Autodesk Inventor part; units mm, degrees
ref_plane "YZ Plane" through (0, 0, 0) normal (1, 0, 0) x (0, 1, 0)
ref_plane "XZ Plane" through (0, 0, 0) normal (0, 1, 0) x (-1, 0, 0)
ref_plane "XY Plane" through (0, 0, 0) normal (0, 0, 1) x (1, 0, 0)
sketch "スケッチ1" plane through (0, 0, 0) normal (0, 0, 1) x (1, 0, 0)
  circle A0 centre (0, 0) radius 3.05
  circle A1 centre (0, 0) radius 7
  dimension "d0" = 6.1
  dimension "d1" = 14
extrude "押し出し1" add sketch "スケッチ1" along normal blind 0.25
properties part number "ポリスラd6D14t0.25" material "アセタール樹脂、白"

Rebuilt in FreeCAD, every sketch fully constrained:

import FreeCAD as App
import Part
import Sketcher
from FreeCAD import Vector

doc = App.newDocument("Part")
params = doc.addObject("Spreadsheet::Sheet", "Params")
for row, (alias, value) in enumerate([
    ("sketch1_diameter", "14 mm"),
    ("sketch1_diameter2", "6.1 mm"),
    ("pad1_length", "0.25 mm"),
], start=1):
    params.set(f"A{row}", alias)
    params.set(f"B{row}", "=" + value)
    params.setAlias(f"B{row}", alias)

body = doc.addObject("PartDesign::Body", "Body")

# Sketch on XY plane
sketch1 = body.newObject("Sketcher::SketchObject", "Sketch")
sketch1.AttachmentSupport = (doc.getObject("XY_Plane"), [""])
sketch1.MapMode = "FlatFace"
sketch1.addGeometry([
    Part.Circle(Vector(0, 0, 0), Vector(0, 0, 1), 7),
    Part.Circle(Vector(0, 0, 0), Vector(0, 0, 1), 3),
], False)
sketch1.addConstraint([
    Sketcher.Constraint("Coincident", 0, 3, -1, 1),
    Sketcher.Constraint("Coincident", 1, 3, -1, 1),
    Sketcher.Constraint("Diameter", 0, 14.0),
    Sketcher.Constraint("Diameter", 1, 6.1),
])
sketch1.setExpression("Constraints[2]", "Params.sketch1_diameter")
sketch1.setExpression("Constraints[3]", "Params.sketch1_diameter2")
pad1 = body.newObject("PartDesign::Pad", "Pad")
pad1.Profile = sketch1
pad1.setExpression("Length", "Params.pad1_length")

doc.recompute()
